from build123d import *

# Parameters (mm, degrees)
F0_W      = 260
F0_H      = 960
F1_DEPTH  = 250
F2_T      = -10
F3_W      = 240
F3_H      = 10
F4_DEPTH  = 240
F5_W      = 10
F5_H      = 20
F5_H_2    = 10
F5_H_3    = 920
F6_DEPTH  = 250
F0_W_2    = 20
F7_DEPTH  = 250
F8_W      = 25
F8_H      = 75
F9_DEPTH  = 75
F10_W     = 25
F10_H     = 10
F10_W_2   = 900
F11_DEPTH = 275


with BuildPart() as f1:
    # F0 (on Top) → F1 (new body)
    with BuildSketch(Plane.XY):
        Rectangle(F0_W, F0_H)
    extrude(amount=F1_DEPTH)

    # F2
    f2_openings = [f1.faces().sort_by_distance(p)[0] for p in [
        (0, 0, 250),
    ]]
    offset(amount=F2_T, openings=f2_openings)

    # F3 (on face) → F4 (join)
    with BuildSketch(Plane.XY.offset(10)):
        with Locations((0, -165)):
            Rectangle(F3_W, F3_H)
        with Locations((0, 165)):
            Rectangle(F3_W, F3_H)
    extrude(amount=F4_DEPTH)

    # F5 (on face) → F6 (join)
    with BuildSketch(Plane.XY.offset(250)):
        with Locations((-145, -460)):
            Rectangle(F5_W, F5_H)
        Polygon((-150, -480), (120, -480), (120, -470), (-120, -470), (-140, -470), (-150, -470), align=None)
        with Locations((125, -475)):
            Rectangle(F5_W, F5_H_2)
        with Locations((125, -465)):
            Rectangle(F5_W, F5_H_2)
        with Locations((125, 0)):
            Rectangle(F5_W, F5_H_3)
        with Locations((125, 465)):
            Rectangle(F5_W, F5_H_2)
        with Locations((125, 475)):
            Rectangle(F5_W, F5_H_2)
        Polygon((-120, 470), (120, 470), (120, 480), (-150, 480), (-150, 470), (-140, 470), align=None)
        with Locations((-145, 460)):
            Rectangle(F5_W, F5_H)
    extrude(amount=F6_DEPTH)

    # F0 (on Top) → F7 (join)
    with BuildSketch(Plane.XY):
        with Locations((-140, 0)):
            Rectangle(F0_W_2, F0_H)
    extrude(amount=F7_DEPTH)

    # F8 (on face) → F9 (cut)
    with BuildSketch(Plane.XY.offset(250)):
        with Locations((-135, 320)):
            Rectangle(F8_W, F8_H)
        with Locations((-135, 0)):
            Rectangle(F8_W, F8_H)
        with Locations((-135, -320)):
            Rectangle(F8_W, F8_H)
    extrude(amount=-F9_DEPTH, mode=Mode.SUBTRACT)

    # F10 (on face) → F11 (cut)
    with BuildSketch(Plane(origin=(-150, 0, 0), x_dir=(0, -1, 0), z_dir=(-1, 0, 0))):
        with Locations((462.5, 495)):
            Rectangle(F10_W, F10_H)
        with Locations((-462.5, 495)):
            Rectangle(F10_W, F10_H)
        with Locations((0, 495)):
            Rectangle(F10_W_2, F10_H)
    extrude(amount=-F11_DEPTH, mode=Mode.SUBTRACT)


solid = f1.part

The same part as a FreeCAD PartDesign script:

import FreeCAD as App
import Part
import Sketcher

V = App.Vector


def faces_at(feature, points):
    """Names of the faces that lie closest to the given points."""
    faces = feature.Shape.Faces
    near = lambda p: min(range(len(faces)), key=lambda i: faces[i].distToShape(Part.Vertex(*p))[0])
    return sorted({f"Face{near(p) + 1}" for p in points})


def add_polygon(sketch, points):
    """Adds a closed chain of lines whose ends are joined by coincident constraints."""
    first, n = sketch.GeometryCount, len(points)
    for a, b in zip(points, points[1:] + points[:1]):
        sketch.addGeometry(Part.LineSegment(App.Vector(*a, 0), App.Vector(*b, 0)), False)
    for i in range(n):
        sketch.addConstraint(Sketcher.Constraint("Coincident", first + i, 2, first + (i + 1) % n, 1))

doc = App.newDocument("Part")
body = doc.addObject("PartDesign::Body", "Body")

sketch1 = body.newObject("Sketcher::SketchObject", "Sketch")
sketch1.AttachmentSupport = (doc.getObject("XY_Plane"), [""])
sketch1.MapMode = "FlatFace"
add_polygon(sketch1, [(-130, 480), (-130, -480), (130, -480), (130, 480)])
sketch1.addConstraint([
    Sketcher.Constraint("Vertical", 0),
    Sketcher.Constraint("Horizontal", 1),
    Sketcher.Constraint("Vertical", 2),
    Sketcher.Constraint("Horizontal", 3),
    Sketcher.Constraint("Symmetric", 0, 2, 2, 2, -1, 1),
    Sketcher.Constraint("DistanceX", 1, 1, 1, 2, 260.0),
    Sketcher.Constraint("DistanceY", 0, 2, 0, 1, 960.0),
])
pad1 = body.newObject("PartDesign::Pad", "Pad")
pad1.Profile = sketch1
pad1.Length = 250
doc.recompute()

thickness = body.newObject("PartDesign::Thickness", "Thickness")
thickness.Base = (pad1, faces_at(pad1, [(0, 0, 250)]))
thickness.Value = 10
thickness.Reversed = True
thickness.Join = "Arc"

sketch2 = body.newObject("Sketcher::SketchObject", "Sketch001")
sketch2.AttachmentSupport = (doc.getObject("XY_Plane"), [""])
sketch2.MapMode = "FlatFace"
sketch2.AttachmentOffset = App.Placement(V(0, 0, 10), App.Rotation())
add_polygon(sketch2, [(-120, -160), (-120, -170), (120, -170), (120, -160)])
add_polygon(sketch2, [(-120, 170), (-120, 160), (120, 160), (120, 170)])
sketch2.addConstraint([
    Sketcher.Constraint("Vertical", 0),
    Sketcher.Constraint("Horizontal", 1),
    Sketcher.Constraint("Vertical", 2),
    Sketcher.Constraint("Horizontal", 3),
    Sketcher.Constraint("Vertical", 4),
    Sketcher.Constraint("Horizontal", 5),
    Sketcher.Constraint("Vertical", 6),
    Sketcher.Constraint("Horizontal", 7),
    Sketcher.Constraint("Symmetric", 2, 2, 4, 2, -1, 1),
    Sketcher.Constraint("Symmetric", 0, 2, 6, 2, -1, 1),
    Sketcher.Constraint("Vertical", 3, 2, 4, 2),
    Sketcher.Constraint("DistanceX", 1, 1, 1, 2, 240.0),
    Sketcher.Constraint("DistanceY", 0, 2, 0, 1, 10.0),
    Sketcher.Constraint("DistanceY", 0, 2, -1, 1, 170.0),
])
pad2 = body.newObject("PartDesign::Pad", "Pad001")
pad2.Profile = sketch2
pad2.Length = 240

sketch3 = body.newObject("Sketcher::SketchObject", "Sketch002")
sketch3.AttachmentSupport = (doc.getObject("XY_Plane"), [""])
sketch3.MapMode = "FlatFace"
sketch3.AttachmentOffset = App.Placement(V(0, 0, 250), App.Rotation())
add_polygon(sketch3, [(-140, -450), (-150, -450), (-150, -480), (130, -480), (130, 480), (-150, 480), (-150, 450), (-140, 450), (-140, 470), (120, 470), (120, -470), (-140, -470)])
sketch3.addConstraint([
    Sketcher.Constraint("Horizontal", 0),
    Sketcher.Constraint("Vertical", 1),
    Sketcher.Constraint("Horizontal", 2),
    Sketcher.Constraint("Vertical", 3),
    Sketcher.Constraint("Horizontal", 4),
    Sketcher.Constraint("Vertical", 5),
    Sketcher.Constraint("Horizontal", 6),
    Sketcher.Constraint("Vertical", 7),
    Sketcher.Constraint("Horizontal", 8),
    Sketcher.Constraint("Vertical", 9),
    Sketcher.Constraint("Horizontal", 10),
    Sketcher.Constraint("Vertical", 11),
    Sketcher.Constraint("Symmetric", 1, 2, 4, 2, -1),
    Sketcher.Constraint("Symmetric", 7, 2, 10, 2, -1),
    Sketcher.Constraint("Equal", 1, 5),
    Sketcher.Constraint("DistanceX", 0, 2, 0, 1, 10.0),
    Sketcher.Constraint("DistanceX", 2, 1, 2, 2, 280.0),
    Sketcher.Constraint("DistanceX", 8, 1, 8, 2, 260.0),
    Sketcher.Constraint("DistanceY", 1, 2, 1, 1, 30.0),
    Sketcher.Constraint("DistanceY", 3, 1, 3, 2, 960.0),
    Sketcher.Constraint("DistanceY", 7, 1, 7, 2, 20.0),
    Sketcher.Constraint("DistanceX", 0, 2, -1, 1, 150.0),
])
pad3 = body.newObject("PartDesign::Pad", "Pad002")
pad3.Profile = sketch3
pad3.Length = 250

sketch4 = body.newObject("Sketcher::SketchObject", "Sketch003")
sketch4.AttachmentSupport = (doc.getObject("XY_Plane"), [""])
sketch4.MapMode = "FlatFace"
add_polygon(sketch4, [(-150, 480), (-150, -480), (-130, -480), (-130, 480)])
sketch4.addConstraint([
    Sketcher.Constraint("Vertical", 0),
    Sketcher.Constraint("Horizontal", 1),
    Sketcher.Constraint("Vertical", 2),
    Sketcher.Constraint("Horizontal", 3),
    Sketcher.Constraint("DistanceX", 1, 1, 1, 2, 20.0),
    Sketcher.Constraint("DistanceY", 0, 2, 0, 1, 960.0),
    Sketcher.Constraint("DistanceX", 0, 2, -1, 1, 150.0),
    Sketcher.Constraint("DistanceY", 0, 2, -1, 1, 480.0),
])
pad4 = body.newObject("PartDesign::Pad", "Pad003")
pad4.Profile = sketch4
pad4.Length = 250

sketch5 = body.newObject("Sketcher::SketchObject", "Sketch004")
sketch5.AttachmentSupport = (doc.getObject("XY_Plane"), [""])
sketch5.MapMode = "FlatFace"
sketch5.AttachmentOffset = App.Placement(V(0, 0, 250), App.Rotation())
add_polygon(sketch5, [(-148, 358), (-148, 282), (-122, 282), (-122, 358)])
add_polygon(sketch5, [(-148, 38), (-148, -38), (-122, -38), (-122, 38)])
add_polygon(sketch5, [(-148, -282), (-148, -358), (-122, -358), (-122, -282)])
sketch5.addConstraint([
    Sketcher.Constraint("Vertical", 0),
    Sketcher.Constraint("Horizontal", 1),
    Sketcher.Constraint("Vertical", 2),
    Sketcher.Constraint("Horizontal", 3),
    Sketcher.Constraint("Vertical", 4),
    Sketcher.Constraint("Horizontal", 5),
    Sketcher.Constraint("Vertical", 6),
    Sketcher.Constraint("Horizontal", 7),
    Sketcher.Constraint("Vertical", 8),
    Sketcher.Constraint("Horizontal", 9),
    Sketcher.Constraint("Vertical", 10),
    Sketcher.Constraint("Horizontal", 11),
    Sketcher.Constraint("Symmetric", 3, 2, 8, 2, -1),
    Sketcher.Constraint("Symmetric", 1, 2, 10, 2, -1),
    Sketcher.Constraint("Vertical", 3, 2, 4, 2),
    Sketcher.Constraint("Vertical", 2, 2, 5, 2),
    Sketcher.Constraint("Equal", 2, 4),
    Sketcher.Constraint("DistanceX", 1, 1, 1, 2, 25.0),
    Sketcher.Constraint("DistanceY", 0, 2, 0, 1, 75.0),
    Sketcher.Constraint("DistanceY", 4, 2, 0, 2, 320.0),
    Sketcher.Constraint("DistanceY", 8, 2, 4, 2, 320.0),
    Sketcher.Constraint("DistanceX", 0, 2, -1, 1, 147.5),
])
pocket1 = body.newObject("PartDesign::Pocket", "Pocket")
pocket1.Profile = sketch5
pocket1.Length = 75

sketch6 = body.newObject("Sketcher::SketchObject", "Sketch005")
sketch6.AttachmentSupport = (doc.getObject("YZ_Plane"), [""])
sketch6.MapMode = "FlatFace"
sketch6.AttachmentOffset = App.Placement(V(0, 0, -150), App.Rotation())
add_polygon(sketch6, [(-475, 490), (-475, 500), (475, 500), (475, 490)])
sketch6.addConstraint([
    Sketcher.Constraint("Vertical", 0),
    Sketcher.Constraint("Horizontal", 1),
    Sketcher.Constraint("Vertical", 2),
    Sketcher.Constraint("Horizontal", 3),
    Sketcher.Constraint("DistanceX", 1, 1, 1, 2, 950.0),
    Sketcher.Constraint("DistanceY", 0, 1, 0, 2, 10.0),
    Sketcher.Constraint("DistanceX", 0, 2, -1, 1, 475.0),
    Sketcher.Constraint("DistanceY", -1, 1, 0, 2, 500.0),
])
pocket2 = body.newObject("PartDesign::Pocket", "Pocket001")
pocket2.Profile = sketch6
pocket2.Length = 275
pocket2.Reversed = True

doc.recompute()
